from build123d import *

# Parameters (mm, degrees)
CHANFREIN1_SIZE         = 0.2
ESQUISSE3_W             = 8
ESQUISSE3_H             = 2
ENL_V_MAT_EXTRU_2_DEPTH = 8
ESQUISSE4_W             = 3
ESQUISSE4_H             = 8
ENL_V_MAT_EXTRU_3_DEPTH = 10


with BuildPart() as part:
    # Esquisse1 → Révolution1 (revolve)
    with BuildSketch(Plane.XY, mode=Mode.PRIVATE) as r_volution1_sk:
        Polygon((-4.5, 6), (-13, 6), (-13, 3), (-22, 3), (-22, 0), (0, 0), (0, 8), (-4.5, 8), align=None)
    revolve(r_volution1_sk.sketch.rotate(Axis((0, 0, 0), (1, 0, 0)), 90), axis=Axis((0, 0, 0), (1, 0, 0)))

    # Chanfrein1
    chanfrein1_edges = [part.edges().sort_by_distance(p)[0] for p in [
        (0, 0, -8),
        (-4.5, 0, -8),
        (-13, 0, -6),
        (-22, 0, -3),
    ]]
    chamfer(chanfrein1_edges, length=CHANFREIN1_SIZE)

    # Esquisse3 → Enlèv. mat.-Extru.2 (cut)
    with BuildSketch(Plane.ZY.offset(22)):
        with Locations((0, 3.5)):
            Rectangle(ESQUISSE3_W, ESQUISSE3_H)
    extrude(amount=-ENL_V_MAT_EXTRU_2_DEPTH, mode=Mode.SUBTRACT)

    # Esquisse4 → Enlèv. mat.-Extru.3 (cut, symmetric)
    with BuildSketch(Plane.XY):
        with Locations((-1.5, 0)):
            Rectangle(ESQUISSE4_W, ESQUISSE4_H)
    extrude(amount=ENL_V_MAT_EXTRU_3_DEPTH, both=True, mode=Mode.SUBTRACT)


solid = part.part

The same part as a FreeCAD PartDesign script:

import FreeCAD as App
import Part
import Sketcher
from FreeCAD import Vector


def edges_at(feature, points):
    """Names of the edges that pass closest to the given points."""
    edges = feature.Shape.Edges
    near = lambda p: min(range(len(edges)), key=lambda i: edges[i].distToShape(Part.Vertex(*p))[0])
    return sorted({f"Edge{near(p) + 1}" for p in points})


def add_polygon(sketch, points):
    """Adds a closed chain of lines whose ends are joined by coincident constraints."""
    first, n = sketch.GeometryCount, len(points)
    for a, b in zip(points, points[1:] + points[:1]):
        sketch.addGeometry(Part.LineSegment(App.Vector(*a, 0), App.Vector(*b, 0)), False)
    for i in range(n):
        sketch.addConstraint(Sketcher.Constraint("Coincident", first + i, 2, first + (i + 1) % n, 1))

doc = App.newDocument("Part")
body = doc.addObject("PartDesign::Body", "Body")

sketch1 = doc.addObject("Sketcher::SketchObject", "Sketch")
body.addObject(sketch1)
sketch1.AttachmentSupport = (doc.XY_Plane, [""])
sketch1.MapMode = "FlatFace"
add_polygon(sketch1, [(-4.5, 6), (-13, 6), (-13, 3), (-22, 3), (-22, 0), (0, 0), (0, 8), (-4.5, 8)])
sketch1.addConstraint(Sketcher.Constraint("Horizontal", 0))
sketch1.addConstraint(Sketcher.Constraint("Vertical", 1))
sketch1.addConstraint(Sketcher.Constraint("Horizontal", 2))
sketch1.addConstraint(Sketcher.Constraint("Vertical", 3))
sketch1.addConstraint(Sketcher.Constraint("Horizontal", 4))
sketch1.addConstraint(Sketcher.Constraint("Vertical", 5))
sketch1.addConstraint(Sketcher.Constraint("Horizontal", 6))
sketch1.addConstraint(Sketcher.Constraint("Vertical", 7))
sketch1.addConstraint(Sketcher.Constraint("Coincident", 4, 2, -1, 1))
sketch1.addConstraint(Sketcher.Constraint("Equal", 1, 3))
sketch1.addConstraint(Sketcher.Constraint("DistanceX", 2, 2, 2, 1, 9.0))
sketch1.addConstraint(Sketcher.Constraint("DistanceX", 4, 1, 4, 2, 22.0))
sketch1.addConstraint(Sketcher.Constraint("DistanceY", 1, 2, 1, 1, 3.0))
sketch1.addConstraint(Sketcher.Constraint("DistanceY", 5, 1, 5, 2, 8.0))
sketch1.addConstraint(Sketcher.Constraint("DistanceX", 0, 2, 0, 1, 8.5))
revolution = doc.addObject("PartDesign::Revolution", "Revolution")
body.addObject(revolution)
revolution.Profile = sketch1
revolution.ReferenceAxis = (sketch1, ["H_Axis"])
revolution.Angle = 360
doc.recompute()

chamfer = doc.addObject("PartDesign::Chamfer", "Chamfer")
body.addObject(chamfer)
chamfer.Base = (revolution, edges_at(revolution, [
    (0, 0, -8),
    (-4.5, 0, -8),
    (-13, 0, -6),
    (-22, 0, -3),
]))
chamfer.Size = 0.2

sketch2 = doc.addObject("Sketcher::SketchObject", "Sketch001")
body.addObject(sketch2)
sketch2.AttachmentSupport = (doc.YZ_Plane, [""])
sketch2.MapMode = "FlatFace"
sketch2.AttachmentOffset = App.Placement(Vector(0, 0, -22), App.Rotation())
add_polygon(sketch2, [(4.5, -4), (2.5, -4), (2.5, 4), (4.5, 4)])
sketch2.addConstraint(Sketcher.Constraint("Horizontal", 0))
sketch2.addConstraint(Sketcher.Constraint("Vertical", 1))
sketch2.addConstraint(Sketcher.Constraint("Horizontal", 2))
sketch2.addConstraint(Sketcher.Constraint("Vertical", 3))
sketch2.addConstraint(Sketcher.Constraint("DistanceX", 0, 2, 0, 1, 2.0))
sketch2.addConstraint(Sketcher.Constraint("DistanceY", 1, 1, 1, 2, 8.0))
sketch2.addConstraint(Sketcher.Constraint("DistanceY", 0, 2, -1, 1, 4.0))
sketch2.addConstraint(Sketcher.Constraint("DistanceX", -1, 1, 0, 2, 2.5))
pocket1 = doc.addObject("PartDesign::Pocket", "Pocket")
body.addObject(pocket1)
pocket1.Profile = sketch2
pocket1.Length = 8
pocket1.Reversed = True

sketch3 = doc.addObject("Sketcher::SketchObject", "Sketch002")
body.addObject(sketch3)
sketch3.AttachmentSupport = (doc.XY_Plane, [""])
sketch3.MapMode = "FlatFace"
add_polygon(sketch3, [(-3, 4), (-3, -4), (0, -4), (0, 4)])
sketch3.addConstraint(Sketcher.Constraint("Vertical", 0))
sketch3.addConstraint(Sketcher.Constraint("Horizontal", 1))
sketch3.addConstraint(Sketcher.Constraint("Vertical", 2))
sketch3.addConstraint(Sketcher.Constraint("Horizontal", 3))
sketch3.addConstraint(Sketcher.Constraint("Symmetric", 1, 2, 2, 2, -1, 1))
sketch3.addConstraint(Sketcher.Constraint("DistanceX", 1, 1, 1, 2, 3.0))
sketch3.addConstraint(Sketcher.Constraint("DistanceY", 0, 2, 0, 1, 8.0))
pocket2 = doc.addObject("PartDesign::Pocket", "Pocket001")
body.addObject(pocket2)
pocket2.Profile = sketch3
pocket2.Length = 20
pocket2.Midplane = True

doc.recompute()
